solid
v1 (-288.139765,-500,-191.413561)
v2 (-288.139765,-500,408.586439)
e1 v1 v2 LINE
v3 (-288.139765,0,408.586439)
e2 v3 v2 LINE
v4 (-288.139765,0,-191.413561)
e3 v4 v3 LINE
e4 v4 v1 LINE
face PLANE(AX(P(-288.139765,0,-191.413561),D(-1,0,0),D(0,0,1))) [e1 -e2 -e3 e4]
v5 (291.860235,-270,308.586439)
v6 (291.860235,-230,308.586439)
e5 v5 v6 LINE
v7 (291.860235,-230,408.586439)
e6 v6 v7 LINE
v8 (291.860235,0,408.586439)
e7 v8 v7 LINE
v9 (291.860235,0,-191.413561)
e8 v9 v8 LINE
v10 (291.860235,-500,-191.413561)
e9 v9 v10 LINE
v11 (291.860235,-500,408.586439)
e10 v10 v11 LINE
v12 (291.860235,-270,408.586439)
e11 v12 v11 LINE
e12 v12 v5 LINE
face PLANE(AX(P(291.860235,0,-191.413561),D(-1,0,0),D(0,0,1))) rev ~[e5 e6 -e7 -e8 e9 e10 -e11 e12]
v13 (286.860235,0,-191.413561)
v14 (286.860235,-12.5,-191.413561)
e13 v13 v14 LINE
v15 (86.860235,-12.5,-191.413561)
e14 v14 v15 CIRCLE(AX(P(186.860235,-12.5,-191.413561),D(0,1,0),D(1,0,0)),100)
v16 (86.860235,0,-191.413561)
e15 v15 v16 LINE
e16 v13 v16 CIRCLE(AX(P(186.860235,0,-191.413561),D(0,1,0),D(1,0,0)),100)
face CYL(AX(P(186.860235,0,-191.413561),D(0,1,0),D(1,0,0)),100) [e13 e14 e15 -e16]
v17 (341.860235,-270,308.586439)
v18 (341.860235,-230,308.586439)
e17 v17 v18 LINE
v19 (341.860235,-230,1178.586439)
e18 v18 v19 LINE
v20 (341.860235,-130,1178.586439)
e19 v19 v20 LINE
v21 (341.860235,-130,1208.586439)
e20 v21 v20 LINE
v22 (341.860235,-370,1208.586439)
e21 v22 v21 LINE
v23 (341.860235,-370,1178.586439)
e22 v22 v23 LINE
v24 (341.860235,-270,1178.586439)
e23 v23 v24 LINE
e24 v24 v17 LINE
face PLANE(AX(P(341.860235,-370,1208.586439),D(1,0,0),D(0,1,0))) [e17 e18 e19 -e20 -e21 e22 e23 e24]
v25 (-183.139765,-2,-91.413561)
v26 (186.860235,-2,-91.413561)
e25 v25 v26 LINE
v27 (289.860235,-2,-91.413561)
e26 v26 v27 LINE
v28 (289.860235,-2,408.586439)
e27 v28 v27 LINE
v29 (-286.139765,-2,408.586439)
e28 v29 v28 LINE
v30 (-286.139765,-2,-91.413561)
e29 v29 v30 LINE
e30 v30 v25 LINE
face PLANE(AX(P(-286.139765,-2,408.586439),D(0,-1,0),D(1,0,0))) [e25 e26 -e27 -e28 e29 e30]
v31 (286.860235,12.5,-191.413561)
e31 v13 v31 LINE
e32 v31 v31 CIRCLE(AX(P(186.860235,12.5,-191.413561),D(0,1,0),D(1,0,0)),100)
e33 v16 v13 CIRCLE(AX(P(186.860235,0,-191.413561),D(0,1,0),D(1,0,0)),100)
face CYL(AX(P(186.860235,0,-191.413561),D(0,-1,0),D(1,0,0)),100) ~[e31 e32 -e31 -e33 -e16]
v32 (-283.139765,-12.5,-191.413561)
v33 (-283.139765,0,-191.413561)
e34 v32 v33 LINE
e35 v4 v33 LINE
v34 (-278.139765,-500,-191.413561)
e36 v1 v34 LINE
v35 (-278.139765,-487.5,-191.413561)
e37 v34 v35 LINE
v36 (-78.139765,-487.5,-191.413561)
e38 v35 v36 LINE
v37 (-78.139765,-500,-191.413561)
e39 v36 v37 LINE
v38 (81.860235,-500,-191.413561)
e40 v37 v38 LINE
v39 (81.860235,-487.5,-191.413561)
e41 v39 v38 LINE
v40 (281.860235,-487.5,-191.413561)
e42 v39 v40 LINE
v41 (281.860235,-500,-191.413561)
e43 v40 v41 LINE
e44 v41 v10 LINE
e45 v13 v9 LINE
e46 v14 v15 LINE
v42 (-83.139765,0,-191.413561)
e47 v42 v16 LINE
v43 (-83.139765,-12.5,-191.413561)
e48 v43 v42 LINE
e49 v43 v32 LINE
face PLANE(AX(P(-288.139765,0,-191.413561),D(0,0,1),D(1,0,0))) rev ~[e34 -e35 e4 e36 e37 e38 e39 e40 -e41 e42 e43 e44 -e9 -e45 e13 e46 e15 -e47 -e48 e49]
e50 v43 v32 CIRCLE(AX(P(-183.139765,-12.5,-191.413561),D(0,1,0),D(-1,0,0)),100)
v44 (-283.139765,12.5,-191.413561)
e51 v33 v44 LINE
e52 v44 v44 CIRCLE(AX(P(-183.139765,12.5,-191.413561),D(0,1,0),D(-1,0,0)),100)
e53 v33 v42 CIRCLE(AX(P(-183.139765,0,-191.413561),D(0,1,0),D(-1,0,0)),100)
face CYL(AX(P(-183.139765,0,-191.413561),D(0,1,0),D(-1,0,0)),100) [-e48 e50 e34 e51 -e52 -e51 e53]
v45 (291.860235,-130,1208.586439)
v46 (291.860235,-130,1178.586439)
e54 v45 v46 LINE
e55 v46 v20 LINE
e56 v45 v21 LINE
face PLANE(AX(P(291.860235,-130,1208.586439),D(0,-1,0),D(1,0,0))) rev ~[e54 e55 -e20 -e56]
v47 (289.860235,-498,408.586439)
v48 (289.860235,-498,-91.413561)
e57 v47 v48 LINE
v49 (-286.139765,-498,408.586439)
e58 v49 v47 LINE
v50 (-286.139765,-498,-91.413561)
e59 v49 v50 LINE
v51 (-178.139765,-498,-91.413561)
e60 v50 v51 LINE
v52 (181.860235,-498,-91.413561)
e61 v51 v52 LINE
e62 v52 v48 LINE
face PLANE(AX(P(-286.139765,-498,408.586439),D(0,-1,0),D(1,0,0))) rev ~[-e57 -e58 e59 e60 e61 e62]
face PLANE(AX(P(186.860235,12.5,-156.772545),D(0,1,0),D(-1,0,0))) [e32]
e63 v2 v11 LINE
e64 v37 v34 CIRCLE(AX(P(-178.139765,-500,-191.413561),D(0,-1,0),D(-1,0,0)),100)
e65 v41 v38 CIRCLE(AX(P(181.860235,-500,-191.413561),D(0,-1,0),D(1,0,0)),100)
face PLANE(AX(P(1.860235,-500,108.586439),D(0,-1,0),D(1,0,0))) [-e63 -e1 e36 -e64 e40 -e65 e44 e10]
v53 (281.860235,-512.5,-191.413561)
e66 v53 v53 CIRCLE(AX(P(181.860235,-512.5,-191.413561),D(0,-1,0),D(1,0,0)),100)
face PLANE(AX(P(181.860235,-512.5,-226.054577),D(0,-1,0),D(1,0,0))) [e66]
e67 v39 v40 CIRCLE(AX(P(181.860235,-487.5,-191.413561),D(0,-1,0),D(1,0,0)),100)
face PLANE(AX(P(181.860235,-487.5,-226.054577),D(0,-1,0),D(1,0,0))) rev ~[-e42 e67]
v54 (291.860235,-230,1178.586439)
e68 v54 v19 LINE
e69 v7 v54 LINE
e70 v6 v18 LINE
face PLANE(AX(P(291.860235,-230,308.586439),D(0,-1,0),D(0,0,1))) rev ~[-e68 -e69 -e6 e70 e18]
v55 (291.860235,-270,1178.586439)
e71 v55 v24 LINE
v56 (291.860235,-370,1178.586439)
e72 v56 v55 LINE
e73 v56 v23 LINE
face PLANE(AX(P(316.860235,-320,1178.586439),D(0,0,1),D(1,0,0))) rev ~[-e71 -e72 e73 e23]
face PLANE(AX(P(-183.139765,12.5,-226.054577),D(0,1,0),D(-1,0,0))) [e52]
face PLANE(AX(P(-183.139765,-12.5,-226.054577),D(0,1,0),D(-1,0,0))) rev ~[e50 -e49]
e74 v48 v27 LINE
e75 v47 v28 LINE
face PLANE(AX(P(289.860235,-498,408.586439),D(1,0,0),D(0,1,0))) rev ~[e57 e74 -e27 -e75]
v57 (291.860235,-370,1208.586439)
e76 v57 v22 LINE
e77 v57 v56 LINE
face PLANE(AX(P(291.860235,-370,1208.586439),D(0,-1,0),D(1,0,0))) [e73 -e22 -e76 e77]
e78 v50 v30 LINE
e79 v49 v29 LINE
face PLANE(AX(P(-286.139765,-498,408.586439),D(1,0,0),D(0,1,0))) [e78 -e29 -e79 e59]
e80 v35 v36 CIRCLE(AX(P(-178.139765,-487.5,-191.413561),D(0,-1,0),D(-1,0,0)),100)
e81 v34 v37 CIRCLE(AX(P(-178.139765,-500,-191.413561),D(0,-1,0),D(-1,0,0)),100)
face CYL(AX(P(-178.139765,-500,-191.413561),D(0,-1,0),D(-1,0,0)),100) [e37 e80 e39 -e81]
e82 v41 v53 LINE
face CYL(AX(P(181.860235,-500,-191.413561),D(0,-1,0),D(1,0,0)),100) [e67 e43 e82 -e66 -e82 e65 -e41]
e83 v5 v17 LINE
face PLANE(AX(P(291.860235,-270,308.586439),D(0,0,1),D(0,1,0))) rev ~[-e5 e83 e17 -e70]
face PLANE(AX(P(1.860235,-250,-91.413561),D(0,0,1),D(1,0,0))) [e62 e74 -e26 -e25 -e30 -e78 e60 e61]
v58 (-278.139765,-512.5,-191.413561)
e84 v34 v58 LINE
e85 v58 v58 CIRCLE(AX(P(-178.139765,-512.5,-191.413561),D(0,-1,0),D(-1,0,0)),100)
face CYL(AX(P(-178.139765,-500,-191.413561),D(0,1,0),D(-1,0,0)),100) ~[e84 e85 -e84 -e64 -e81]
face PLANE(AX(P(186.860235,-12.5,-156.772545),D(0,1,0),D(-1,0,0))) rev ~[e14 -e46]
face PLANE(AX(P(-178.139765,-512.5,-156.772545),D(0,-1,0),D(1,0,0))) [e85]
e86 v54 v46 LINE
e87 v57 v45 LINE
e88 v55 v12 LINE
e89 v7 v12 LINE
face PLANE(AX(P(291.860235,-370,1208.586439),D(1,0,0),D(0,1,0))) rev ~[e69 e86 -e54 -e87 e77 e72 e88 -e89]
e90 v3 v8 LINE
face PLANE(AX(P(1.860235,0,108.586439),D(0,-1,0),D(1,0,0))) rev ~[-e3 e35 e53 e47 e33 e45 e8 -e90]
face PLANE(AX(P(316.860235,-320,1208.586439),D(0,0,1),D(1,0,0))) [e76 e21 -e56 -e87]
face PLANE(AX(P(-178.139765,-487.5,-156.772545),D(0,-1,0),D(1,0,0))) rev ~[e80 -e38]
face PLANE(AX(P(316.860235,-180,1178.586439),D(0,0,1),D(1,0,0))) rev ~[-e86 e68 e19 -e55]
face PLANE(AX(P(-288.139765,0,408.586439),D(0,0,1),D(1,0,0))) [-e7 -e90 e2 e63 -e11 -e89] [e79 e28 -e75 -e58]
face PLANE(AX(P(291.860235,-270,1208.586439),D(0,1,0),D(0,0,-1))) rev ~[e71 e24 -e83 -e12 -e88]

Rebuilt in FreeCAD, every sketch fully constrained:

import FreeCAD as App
import Part
import Sketcher
Q = App.Units.Quantity

doc = App.newDocument("Part")
body = doc.addObject("PartDesign::Body", "Body")

# Sketch on XZ plane
sketch1 = body.newObject("Sketcher::SketchObject", "Sketch")
sketch1.AttachmentSupport = (doc.getObject("XZ_Plane"), [""])
sketch1.MapMode = "FlatFace"
sketch1.addGeometry(Part.LineSegment(App.Vector(-288.139765, 408.586439, 0), App.Vector(-288.139765, -191.413561, 0)), False)
sketch1.addGeometry(Part.LineSegment(App.Vector(-288.139765, -191.413561, 0), App.Vector(291.860235, -191.413561, 0)), False)
sketch1.addGeometry(Part.LineSegment(App.Vector(291.860235, -191.413561, 0), App.Vector(291.860235, 408.586439, 0)), False)
sketch1.addGeometry(Part.LineSegment(App.Vector(291.860235, 408.586439, 0), App.Vector(-288.139765, 408.586439, 0)), False)
sketch1.addConstraint(Sketcher.Constraint("Coincident", 0, 2, 1, 1))
sketch1.addConstraint(Sketcher.Constraint("Coincident", 1, 2, 2, 1))
sketch1.addConstraint(Sketcher.Constraint("Coincident", 2, 2, 3, 1))
sketch1.addConstraint(Sketcher.Constraint("Coincident", 3, 2, 0, 1))
sketch1.addConstraint(Sketcher.Constraint("Vertical", 0))
sketch1.addConstraint(Sketcher.Constraint("Horizontal", 1))
sketch1.addConstraint(Sketcher.Constraint("Vertical", 2))
sketch1.addConstraint(Sketcher.Constraint("Horizontal", 3))
sketch1.addConstraint(Sketcher.Constraint("DistanceX", 1, 1, 1, 2, Q("580 mm")))
sketch1.addConstraint(Sketcher.Constraint("DistanceY", 0, 2, 0, 1, Q("600 mm")))
sketch1.addConstraint(Sketcher.Constraint("DistanceY", 0, 2, -1, 1, Q("191.413561 mm")))
sketch1.addConstraint(Sketcher.Constraint("DistanceX", 0, 2, -1, 1, Q("288.139765 mm")))
pad1 = body.newObject("PartDesign::Pad", "Pad")
pad1.Profile = sketch1
pad1.Length = 500

# Sketch on XY plane
sketch2 = body.newObject("Sketcher::SketchObject", "Sketch001")
sketch2.AttachmentSupport = (doc.getObject("XY_Plane"), [""])
sketch2.MapMode = "FlatFace"
sketch2.AttachmentOffset = App.Placement(App.Vector(0, 0, 408.586439), App.Rotation())
sketch2.addGeometry(Part.LineSegment(App.Vector(-286.139765, -2, 0), App.Vector(-286.139765, -498, 0)), False)
sketch2.addGeometry(Part.LineSegment(App.Vector(-286.139765, -498, 0), App.Vector(289.860235, -498, 0)), False)
sketch2.addGeometry(Part.LineSegment(App.Vector(289.860235, -498, 0), App.Vector(289.860235, -2, 0)), False)
sketch2.addGeometry(Part.LineSegment(App.Vector(289.860235, -2, 0), App.Vector(-286.139765, -2, 0)), False)
sketch2.addConstraint(Sketcher.Constraint("Coincident", 0, 2, 1, 1))
sketch2.addConstraint(Sketcher.Constraint("Coincident", 1, 2, 2, 1))
sketch2.addConstraint(Sketcher.Constraint("Coincident", 2, 2, 3, 1))
sketch2.addConstraint(Sketcher.Constraint("Coincident", 3, 2, 0, 1))
sketch2.addConstraint(Sketcher.Constraint("Vertical", 0))
sketch2.addConstraint(Sketcher.Constraint("Horizontal", 1))
sketch2.addConstraint(Sketcher.Constraint("Vertical", 2))
sketch2.addConstraint(Sketcher.Constraint("Horizontal", 3))
sketch2.addConstraint(Sketcher.Constraint("DistanceX", 1, 1, 1, 2, Q("576 mm")))
sketch2.addConstraint(Sketcher.Constraint("DistanceY", 0, 2, 0, 1, Q("496 mm")))
sketch2.addConstraint(Sketcher.Constraint("DistanceY", 0, 2, -1, 1, Q("498 mm")))
sketch2.addConstraint(Sketcher.Constraint("DistanceX", 0, 2, -1, 1, Q("286.139765 mm")))
pocket1 = body.newObject("PartDesign::Pocket", "Pocket")
pocket1.Profile = sketch2
pocket1.Length = 500

# Sketch on YZ plane
sketch3 = body.newObject("Sketcher::SketchObject", "Sketch002")
sketch3.AttachmentSupport = (doc.getObject("YZ_Plane"), [""])
sketch3.MapMode = "FlatFace"
sketch3.AttachmentOffset = App.Placement(App.Vector(0, 0, 291.860235), App.Rotation())
sketch3.addGeometry(Part.LineSegment(App.Vector(-270, 1208.586439, 0), App.Vector(-270, 308.586439, 0)), False)
sketch3.addGeometry(Part.LineSegment(App.Vector(-270, 308.586439, 0), App.Vector(-230, 308.586439, 0)), False)
sketch3.addGeometry(Part.LineSegment(App.Vector(-230, 308.586439, 0), App.Vector(-230, 1208.586439, 0)), False)
sketch3.addGeometry(Part.LineSegment(App.Vector(-230, 1208.586439, 0), App.Vector(-270, 1208.586439, 0)), False)
sketch3.addConstraint(Sketcher.Constraint("Coincident", 0, 2, 1, 1))
sketch3.addConstraint(Sketcher.Constraint("Coincident", 1, 2, 2, 1))
sketch3.addConstraint(Sketcher.Constraint("Coincident", 2, 2, 3, 1))
sketch3.addConstraint(Sketcher.Constraint("Coincident", 3, 2, 0, 1))
sketch3.addConstraint(Sketcher.Constraint("Vertical", 0))
sketch3.addConstraint(Sketcher.Constraint("Horizontal", 1))
sketch3.addConstraint(Sketcher.Constraint("Vertical", 2))
sketch3.addConstraint(Sketcher.Constraint("Horizontal", 3))
sketch3.addConstraint(Sketcher.Constraint("DistanceX", 1, 1, 1, 2, Q("40 mm")))
sketch3.addConstraint(Sketcher.Constraint("DistanceY", 0, 2, 0, 1, Q("900 mm")))
sketch3.addConstraint(Sketcher.Constraint("DistanceX", 0, 2, -1, 1, Q("270 mm")))
sketch3.addConstraint(Sketcher.Constraint("DistanceY", -1, 1, 0, 2, Q("308.586439 mm")))
pad2 = body.newObject("PartDesign::Pad", "Pad001")
pad2.Profile = sketch3
pad2.Length = 50

# Sketch on XY plane
sketch4 = body.newObject("Sketcher::SketchObject", "Sketch003")
sketch4.AttachmentSupport = (doc.getObject("XY_Plane"), [""])
sketch4.MapMode = "FlatFace"
sketch4.AttachmentOffset = App.Placement(App.Vector(0, 0, 1208.586439), App.Rotation())
sketch4.addGeometry(Part.LineSegment(App.Vector(291.860235, -270, 0), App.Vector(291.860235, -370, 0)), False)
sketch4.addGeometry(Part.LineSegment(App.Vector(291.860235, -370, 0), App.Vector(341.860235, -370, 0)), False)
sketch4.addGeometry(Part.LineSegment(App.Vector(341.860235, -370, 0), App.Vector(341.860235, -270, 0)), False)
sketch4.addGeometry(Part.LineSegment(App.Vector(341.860235, -270, 0), App.Vector(291.860235, -270, 0)), False)
sketch4.addGeometry(Part.LineSegment(App.Vector(291.860235, -130, 0), App.Vector(291.860235, -230, 0)), False)
sketch4.addGeometry(Part.LineSegment(App.Vector(291.860235, -230, 0), App.Vector(341.860235, -230, 0)), False)
sketch4.addGeometry(Part.LineSegment(App.Vector(341.860235, -230, 0), App.Vector(341.860235, -130, 0)), False)
sketch4.addGeometry(Part.LineSegment(App.Vector(341.860235, -130, 0), App.Vector(291.860235, -130, 0)), False)
sketch4.addConstraint(Sketcher.Constraint("Coincident", 0, 2, 1, 1))
sketch4.addConstraint(Sketcher.Constraint("Coincident", 1, 2, 2, 1))
sketch4.addConstraint(Sketcher.Constraint("Coincident", 2, 2, 3, 1))
sketch4.addConstraint(Sketcher.Constraint("Coincident", 3, 2, 0, 1))
sketch4.addConstraint(Sketcher.Constraint("Coincident", 4, 2, 5, 1))
sketch4.addConstraint(Sketcher.Constraint("Coincident", 5, 2, 6, 1))
sketch4.addConstraint(Sketcher.Constraint("Coincident", 6, 2, 7, 1))
sketch4.addConstraint(Sketcher.Constraint("Coincident", 7, 2, 4, 1))
sketch4.addConstraint(Sketcher.Constraint("Vertical", 0))
sketch4.addConstraint(Sketcher.Constraint("Horizontal", 1))
sketch4.addConstraint(Sketcher.Constraint("Vertical", 2))
sketch4.addConstraint(Sketcher.Constraint("Horizontal", 3))
sketch4.addConstraint(Sketcher.Constraint("Vertical", 4))
sketch4.addConstraint(Sketcher.Constraint("Horizontal", 5))
sketch4.addConstraint(Sketcher.Constraint("Vertical", 6))
sketch4.addConstraint(Sketcher.Constraint("Horizontal", 7))
sketch4.addConstraint(Sketcher.Constraint("Vertical", 3, 2, 4, 2))
sketch4.addConstraint(Sketcher.Constraint("Vertical", 2, 2, 5, 2))
sketch4.addConstraint(Sketcher.Constraint("Equal", 2, 4))
sketch4.addConstraint(Sketcher.Constraint("DistanceX", 1, 1, 1, 2, Q("50 mm")))
sketch4.addConstraint(Sketcher.Constraint("DistanceY", 0, 2, 0, 1, Q("100 mm")))
sketch4.addConstraint(Sketcher.Constraint("DistanceY", 0, 2, -1, 1, Q("370 mm")))
sketch4.addConstraint(Sketcher.Constraint("DistanceY", 4, 2, -1, 1, Q("230 mm")))
sketch4.addConstraint(Sketcher.Constraint("DistanceX", -1, 1, 0, 2, Q("291.860235 mm")))
pad3 = body.newObject("PartDesign::Pad", "Pad002")
pad3.Profile = sketch4
pad3.Length = 30
pad3.Reversed = True

# Sketch on XZ plane
sketch5 = body.newObject("Sketcher::SketchObject", "Sketch004")
sketch5.AttachmentSupport = (doc.getObject("XZ_Plane"), [""])
sketch5.MapMode = "FlatFace"
sketch5.AttachmentOffset = App.Placement(App.Vector(0, 0, 500), App.Rotation())
sketch5.addGeometry(Part.Circle(App.Vector(-178.139765, -191.413561, 0), App.Vector(0, 0, 1), 100), False)
sketch5.addGeometry(Part.Circle(App.Vector(181.860235, -191.413561, 0), App.Vector(0, 0, 1), 100), False)
sketch5.addConstraint(Sketcher.Constraint("Equal", 0, 1))
sketch5.addConstraint(Sketcher.Constraint("Horizontal", 0, 3, 1, 3))
sketch5.addConstraint(Sketcher.Constraint("Diameter", 0, Q("200 mm")))
sketch5.addConstraint(Sketcher.Constraint("DistanceX", 0, 3, 1, 3, Q("360 mm")))
sketch5.addConstraint(Sketcher.Constraint("DistanceY", 0, 3, -1, 1, Q("191.413561 mm")))
sketch5.addConstraint(Sketcher.Constraint("DistanceX", 0, 3, -1, 1, Q("178.139765 mm")))
pad4 = body.newObject("PartDesign::Pad", "Pad003")
pad4.Profile = sketch5
pad4.Length = 25
pad4.Midplane = True

# Sketch on XZ plane
sketch6 = body.newObject("Sketcher::SketchObject", "Sketch005")
sketch6.AttachmentSupport = (doc.getObject("XZ_Plane"), [""])
sketch6.MapMode = "FlatFace"
sketch6.addGeometry(Part.Circle(App.Vector(186.860235, -191.413561, 0), App.Vector(0, 0, 1), 100), False)
sketch6.addGeometry(Part.Circle(App.Vector(-183.139765, -191.413561, 0), App.Vector(0, 0, 1), 100), False)
sketch6.addConstraint(Sketcher.Constraint("Equal", 0, 1))
sketch6.addConstraint(Sketcher.Constraint("Horizontal", 0, 3, 1, 3))
sketch6.addConstraint(Sketcher.Constraint("Diameter", 0, Q("200 mm")))
sketch6.addConstraint(Sketcher.Constraint("DistanceX", 1, 3, 0, 3, Q("370 mm")))
sketch6.addConstraint(Sketcher.Constraint("DistanceY", 0, 3, -1, 1, Q("191.413561 mm")))
sketch6.addConstraint(Sketcher.Constraint("DistanceX", -1, 1, 0, 3, Q("186.860235 mm")))
pad5 = body.newObject("PartDesign::Pad", "Pad004")
pad5.Profile = sketch6
pad5.Length = 25
pad5.Midplane = True

doc.recompute()
